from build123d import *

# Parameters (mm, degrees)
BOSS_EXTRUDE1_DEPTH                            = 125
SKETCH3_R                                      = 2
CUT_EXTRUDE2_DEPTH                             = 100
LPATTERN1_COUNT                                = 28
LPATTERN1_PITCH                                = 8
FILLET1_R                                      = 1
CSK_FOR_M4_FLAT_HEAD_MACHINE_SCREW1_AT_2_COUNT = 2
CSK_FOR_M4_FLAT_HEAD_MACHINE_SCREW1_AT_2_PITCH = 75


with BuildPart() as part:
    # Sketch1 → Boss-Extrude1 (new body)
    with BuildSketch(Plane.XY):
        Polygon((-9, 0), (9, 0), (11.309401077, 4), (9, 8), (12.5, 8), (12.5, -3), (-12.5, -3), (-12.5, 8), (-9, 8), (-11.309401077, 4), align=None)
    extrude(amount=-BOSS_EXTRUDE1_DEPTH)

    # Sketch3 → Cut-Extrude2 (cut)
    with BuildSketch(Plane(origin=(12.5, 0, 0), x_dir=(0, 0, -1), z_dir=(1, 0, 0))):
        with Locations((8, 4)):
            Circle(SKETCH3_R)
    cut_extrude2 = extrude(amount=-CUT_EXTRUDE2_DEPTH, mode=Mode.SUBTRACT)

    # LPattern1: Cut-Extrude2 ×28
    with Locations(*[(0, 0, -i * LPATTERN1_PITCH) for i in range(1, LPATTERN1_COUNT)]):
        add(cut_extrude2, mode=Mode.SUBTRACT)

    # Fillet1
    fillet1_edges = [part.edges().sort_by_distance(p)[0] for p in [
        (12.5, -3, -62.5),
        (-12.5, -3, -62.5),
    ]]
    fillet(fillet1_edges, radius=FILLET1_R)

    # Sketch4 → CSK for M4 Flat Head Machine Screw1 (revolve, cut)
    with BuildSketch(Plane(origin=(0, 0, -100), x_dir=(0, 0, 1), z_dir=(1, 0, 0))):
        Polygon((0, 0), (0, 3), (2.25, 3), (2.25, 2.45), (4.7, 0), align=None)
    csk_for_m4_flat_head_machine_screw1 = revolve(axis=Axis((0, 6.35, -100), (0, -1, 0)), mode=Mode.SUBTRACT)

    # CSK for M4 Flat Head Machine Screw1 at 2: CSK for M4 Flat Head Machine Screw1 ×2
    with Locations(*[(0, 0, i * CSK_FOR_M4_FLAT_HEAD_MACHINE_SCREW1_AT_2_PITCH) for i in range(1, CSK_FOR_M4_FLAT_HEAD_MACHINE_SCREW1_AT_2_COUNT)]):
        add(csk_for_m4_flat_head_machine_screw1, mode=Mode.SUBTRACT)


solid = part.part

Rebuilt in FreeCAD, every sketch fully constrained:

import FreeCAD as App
import Part
import Sketcher
from FreeCAD import Vector
Q = App.Units.Quantity


def edges_at(feature, points):
    """Names of the edges that pass closest to the given points."""
    edges = feature.Shape.Edges
    near = lambda p: min(range(len(edges)), key=lambda i: edges[i].distToShape(Part.Vertex(*p))[0])
    return sorted({f"Edge{near(p) + 1}" for p in points})

doc = App.newDocument("Part")
body = doc.addObject("PartDesign::Body", "Body")

# Sketch on XY plane
sketch1 = body.newObject("Sketcher::SketchObject", "Sketch")
sketch1.AttachmentSupport = (doc.getObject("XY_Plane"), [""])
sketch1.MapMode = "FlatFace"
sketch1.addGeometry(Part.LineSegment(Vector(9, 0, 0), Vector(-9, 0, 0)), False)
sketch1.addGeometry(Part.LineSegment(Vector(-9, 0, 0), Vector(-11.309401, 4, 0)), False)
sketch1.addGeometry(Part.LineSegment(Vector(-11.309401, 4, 0), Vector(-9, 8, 0)), False)
sketch1.addGeometry(Part.LineSegment(Vector(-9, 8, 0), Vector(-12.5, 8, 0)), False)
sketch1.addGeometry(Part.LineSegment(Vector(-12.5, 8, 0), Vector(-12.5, -3, 0)), False)
sketch1.addGeometry(Part.LineSegment(Vector(-12.5, -3, 0), Vector(12.5, -3, 0)), False)
sketch1.addGeometry(Part.LineSegment(Vector(12.5, -3, 0), Vector(12.5, 8, 0)), False)
sketch1.addGeometry(Part.LineSegment(Vector(12.5, 8, 0), Vector(9, 8, 0)), False)
sketch1.addGeometry(Part.LineSegment(Vector(9, 8, 0), Vector(11.309401, 4, 0)), False)
sketch1.addGeometry(Part.LineSegment(Vector(11.309401, 4, 0), Vector(9, 0, 0)), False)
sketch1.addConstraint(Sketcher.Constraint("Coincident", 0, 2, 1, 1))
sketch1.addConstraint(Sketcher.Constraint("Coincident", 1, 2, 2, 1))
sketch1.addConstraint(Sketcher.Constraint("Coincident", 2, 2, 3, 1))
sketch1.addConstraint(Sketcher.Constraint("Coincident", 3, 2, 4, 1))
sketch1.addConstraint(Sketcher.Constraint("Coincident", 4, 2, 5, 1))
sketch1.addConstraint(Sketcher.Constraint("Coincident", 5, 2, 6, 1))
sketch1.addConstraint(Sketcher.Constraint("Coincident", 6, 2, 7, 1))
sketch1.addConstraint(Sketcher.Constraint("Coincident", 7, 2, 8, 1))
sketch1.addConstraint(Sketcher.Constraint("Coincident", 8, 2, 9, 1))
sketch1.addConstraint(Sketcher.Constraint("Coincident", 9, 2, 0, 1))
sketch1.addConstraint(Sketcher.Constraint("Horizontal", 0))
sketch1.addConstraint(Sketcher.Constraint("Horizontal", 3))
sketch1.addConstraint(Sketcher.Constraint("Vertical", 4))
sketch1.addConstraint(Sketcher.Constraint("Horizontal", 5))
sketch1.addConstraint(Sketcher.Constraint("Vertical", 6))
sketch1.addConstraint(Sketcher.Constraint("Horizontal", 7))
sketch1.addConstraint(Sketcher.Constraint("Symmetric", 0, 2, 9, 2, -1, 1))
sketch1.addConstraint(Sketcher.Constraint("Symmetric", 3, 2, 6, 2, -2))
sketch1.addConstraint(Sketcher.Constraint("Symmetric", 1, 2, 8, 2, -2))
sketch1.addConstraint(Sketcher.Constraint("Parallel", 1, 8))
sketch1.addConstraint(Sketcher.Constraint("Parallel", 2, 9))
sketch1.addConstraint(Sketcher.Constraint("Vertical", 0, 2, 2, 2))
sketch1.addConstraint(Sketcher.Constraint("DistanceX", 0, 2, 0, 1, 18.0))
sketch1.addConstraint(Sketcher.Constraint("DistanceX", 5, 1, 5, 2, 25.0))
sketch1.addConstraint(Sketcher.Constraint("DistanceY", 4, 2, 4, 1, 11.0))
sketch1.addConstraint(Sketcher.Constraint("Angle", 1, Q("120 deg")))
sketch1.addConstraint(Sketcher.Constraint("DistanceY", -1, 1, 1, 2, 4.0))
pad1 = body.newObject("PartDesign::Pad", "Pad")
pad1.Profile = sketch1
pad1.Length = 125
pad1.Reversed = True

# Sketch on YZ plane
sketch2 = body.newObject("Sketcher::SketchObject", "Sketch001")
sketch2.AttachmentSupport = (doc.getObject("YZ_Plane"), [""])
sketch2.MapMode = "FlatFace"
sketch2.AttachmentOffset = App.Placement(Vector(0, 0, 12.5), App.Rotation())
sketch2.addGeometry(Part.Circle(Vector(4, -8, 0), Vector(0, 0, 1), 2), False)
sketch2.addConstraint(Sketcher.Constraint("Diameter", 0, 4.0))
sketch2.addConstraint(Sketcher.Constraint("DistanceX", -1, 1, 0, 3, 4.0))
sketch2.addConstraint(Sketcher.Constraint("DistanceY", 0, 3, -1, 1, 8.0))
pocket1 = body.newObject("PartDesign::Pocket", "Pocket")
pocket1.Profile = sketch2
pocket1.Length = 100
doc.recompute()

linearpattern = body.newObject("PartDesign::LinearPattern", "LinearPattern")
linearpattern.Originals = [pocket1]
linearpattern.Direction = (doc.getObject("Z_Axis"), [""])
linearpattern.Mode = "offset"
linearpattern.Offset = 8
linearpattern.Occurrences = 28
linearpattern.Reversed = True
body.Tip = linearpattern
doc.recompute()

fillet = body.newObject("PartDesign::Fillet", "Fillet")
fillet.Base = (linearpattern, edges_at(linearpattern, [(12.5, -3, -62.5), (-12.5, -3, -62.5)]))
fillet.Radius = 1

# Sketch on YZ plane
sketch3 = body.newObject("Sketcher::SketchObject", "Sketch002")
sketch3.AttachmentSupport = (doc.getObject("YZ_Plane"), [""])
sketch3.MapMode = "FlatFace"
sketch3.addGeometry(Part.LineSegment(Vector(-3, -100, 0), Vector(0, -100, 0)), False)
sketch3.addGeometry(Part.LineSegment(Vector(0, -100, 0), Vector(0, -95.3, 0)), False)
sketch3.addGeometry(Part.LineSegment(Vector(0, -95.3, 0), Vector(-2.45, -97.75, 0)), False)
sketch3.addGeometry(Part.LineSegment(Vector(-2.45, -97.75, 0), Vector(-3, -97.75, 0)), False)
sketch3.addGeometry(Part.LineSegment(Vector(-3, -97.75, 0), Vector(-3, -100, 0)), False)
sketch3.addGeometry(Part.LineSegment(Vector(0, -100, 0), Vector(-3, -100, 0)), True)  # axis
sketch3.addConstraint(Sketcher.Constraint("Coincident", 0, 2, 1, 1))
sketch3.addConstraint(Sketcher.Constraint("Coincident", 1, 2, 2, 1))
sketch3.addConstraint(Sketcher.Constraint("Coincident", 2, 2, 3, 1))
sketch3.addConstraint(Sketcher.Constraint("Coincident", 3, 2, 4, 1))
sketch3.addConstraint(Sketcher.Constraint("Coincident", 4, 2, 0, 1))
sketch3.addConstraint(Sketcher.Constraint("Horizontal", 0))
sketch3.addConstraint(Sketcher.Constraint("Vertical", 1))
sketch3.addConstraint(Sketcher.Constraint("Horizontal", 3))
sketch3.addConstraint(Sketcher.Constraint("Vertical", 4))
sketch3.addConstraint(Sketcher.Constraint("Horizontal", 5))
sketch3.addConstraint(Sketcher.Constraint("Coincident", 5, 1, 0, 2))
sketch3.addConstraint(Sketcher.Constraint("PointOnObject", 0, 2, -2))
sketch3.addConstraint(Sketcher.Constraint("Vertical", 3, 2, 5, 2))
sketch3.addConstraint(Sketcher.Constraint("DistanceX", 0, 1, 0, 2, 3.0))
sketch3.addConstraint(Sketcher.Constraint("Angle", 2, Q("-135 deg")))
sketch3.addConstraint(Sketcher.Constraint("DistanceY", 1, 1, 1, 2, 4.7))
sketch3.addConstraint(Sketcher.Constraint("DistanceY", 0, 2, -1, 1, 100.0))
sketch3.addConstraint(Sketcher.Constraint("DistanceX", 3, 2, 3, 1, 0.55))
groove = body.newObject("PartDesign::Groove", "Groove")
groove.Profile = sketch3
groove.ReferenceAxis = (sketch3, ["Axis0"])
groove.Angle = 360
doc.recompute()

linearpattern2 = body.newObject("PartDesign::LinearPattern", "LinearPattern001")
linearpattern2.Originals = [groove]
linearpattern2.Direction = (doc.getObject("Z_Axis"), [""])
linearpattern2.Mode = "offset"
linearpattern2.Offset = 75
linearpattern2.Occurrences = 2
body.Tip = linearpattern2

doc.recompute()
